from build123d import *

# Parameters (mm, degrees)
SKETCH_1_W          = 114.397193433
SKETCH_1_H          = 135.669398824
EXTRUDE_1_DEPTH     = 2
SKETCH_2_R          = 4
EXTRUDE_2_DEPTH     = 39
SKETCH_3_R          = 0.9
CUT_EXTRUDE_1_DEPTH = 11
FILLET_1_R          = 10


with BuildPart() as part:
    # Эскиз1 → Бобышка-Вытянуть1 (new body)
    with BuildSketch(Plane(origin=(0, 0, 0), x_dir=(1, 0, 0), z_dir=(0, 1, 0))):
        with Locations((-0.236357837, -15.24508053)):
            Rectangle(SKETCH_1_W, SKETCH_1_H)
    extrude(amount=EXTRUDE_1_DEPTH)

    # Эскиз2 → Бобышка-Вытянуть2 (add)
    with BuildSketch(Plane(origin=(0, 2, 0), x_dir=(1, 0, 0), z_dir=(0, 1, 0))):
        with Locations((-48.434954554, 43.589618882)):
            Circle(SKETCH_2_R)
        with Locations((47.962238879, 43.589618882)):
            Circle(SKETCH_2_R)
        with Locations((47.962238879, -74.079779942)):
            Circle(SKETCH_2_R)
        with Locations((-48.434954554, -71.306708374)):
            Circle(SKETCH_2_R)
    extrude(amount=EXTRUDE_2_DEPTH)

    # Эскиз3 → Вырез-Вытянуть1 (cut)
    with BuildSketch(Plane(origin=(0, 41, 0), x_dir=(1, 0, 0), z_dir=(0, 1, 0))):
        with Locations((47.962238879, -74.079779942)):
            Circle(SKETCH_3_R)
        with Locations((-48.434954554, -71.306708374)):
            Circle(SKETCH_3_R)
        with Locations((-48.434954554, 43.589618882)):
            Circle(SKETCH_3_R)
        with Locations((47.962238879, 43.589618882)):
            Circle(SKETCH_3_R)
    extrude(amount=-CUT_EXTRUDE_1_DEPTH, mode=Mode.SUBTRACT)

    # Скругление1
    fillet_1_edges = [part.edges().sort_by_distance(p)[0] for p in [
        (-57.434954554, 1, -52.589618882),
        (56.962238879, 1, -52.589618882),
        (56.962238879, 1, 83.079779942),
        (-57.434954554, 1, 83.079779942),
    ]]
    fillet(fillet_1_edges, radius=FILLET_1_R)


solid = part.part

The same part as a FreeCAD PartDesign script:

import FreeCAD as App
import Part
import Sketcher
from FreeCAD import Vector


def edges_at(feature, points):
    """Names of the edges that pass closest to the given points."""
    edges = feature.Shape.Edges
    near = lambda p: min(range(len(edges)), key=lambda i: edges[i].distToShape(Part.Vertex(*p))[0])
    return sorted({f"Edge{near(p) + 1}" for p in points})

doc = App.newDocument("Part")
params = doc.addObject("Spreadsheet::Sheet", "Params")
for row, (alias, value) in enumerate([
    ("pad1_length", "2 mm"),
    ("sketch2_diameter", "8 mm"),
    ("pad2_length", "39 mm"),
    ("sketch3_diameter", "1.8 mm"),
    ("pocket1_length", "11 mm"),
    ("fillet_radius", "10 mm"),
], start=1):
    params.set(f"A{row}", alias)
    params.set(f"B{row}", "=" + value)
    params.setAlias(f"B{row}", alias)

body = doc.addObject("PartDesign::Body", "Body")

# Sketch on XZ plane
sketch1 = body.newObject("Sketcher::SketchObject", "Sketch")
sketch1.AttachmentSupport = (doc.getObject("XZ_Plane"), [""])
sketch1.MapMode = "FlatFace"
sketch1.addGeometry(Part.LineSegment(Vector(-57, -53, 0), Vector(-57, 83, 0)), False)
sketch1.addGeometry(Part.LineSegment(Vector(-57, 83, 0), Vector(57, 83, 0)), False)
sketch1.addGeometry(Part.LineSegment(Vector(57, 83, 0), Vector(57, -53, 0)), False)
sketch1.addGeometry(Part.LineSegment(Vector(57, -53, 0), Vector(-57, -53, 0)), False)
sketch1.addConstraint(Sketcher.Constraint("Coincident", 0, 2, 1, 1))
sketch1.addConstraint(Sketcher.Constraint("Coincident", 1, 2, 2, 1))
sketch1.addConstraint(Sketcher.Constraint("Coincident", 2, 2, 3, 1))
sketch1.addConstraint(Sketcher.Constraint("Coincident", 3, 2, 0, 1))
sketch1.addConstraint(Sketcher.Constraint("Vertical", 0))
sketch1.addConstraint(Sketcher.Constraint("Horizontal", 1))
sketch1.addConstraint(Sketcher.Constraint("Vertical", 2))
sketch1.addConstraint(Sketcher.Constraint("Horizontal", 3))
sketch1.addConstraint(Sketcher.Constraint("DistanceY", 0, 1, 0, 2, 135.669399))
sketch1.addConstraint(Sketcher.Constraint("DistanceX", 1, 1, 1, 2, 114.397193))
sketch1.addConstraint(Sketcher.Constraint("DistanceY", -1, 1, 0, 2, 83.07978))
sketch1.addConstraint(Sketcher.Constraint("DistanceX", -1, 1, 1, 2, 56.962239))
pad1 = body.newObject("PartDesign::Pad", "Pad")
pad1.Profile = sketch1
pad1.setExpression("Length", "Params.pad1_length")
pad1.Reversed = True

# Sketch on XZ plane
sketch2 = body.newObject("Sketcher::SketchObject", "Sketch001")
sketch2.AttachmentSupport = (doc.getObject("XZ_Plane"), [""])
sketch2.MapMode = "FlatFace"
sketch2.AttachmentOffset = App.Placement(Vector(0, 0, -2), App.Rotation())
sketch2.addGeometry(Part.Circle(Vector(-48.4, -43.6, 0), Vector(0, 0, 1), 4), False)
sketch2.addGeometry(Part.Circle(Vector(48, -43.6, 0), Vector(0, 0, 1), 4), False)
sketch2.addGeometry(Part.Circle(Vector(48, 74.1, 0), Vector(0, 0, 1), 4), False)
sketch2.addGeometry(Part.Circle(Vector(-48.4, 71.3, 0), Vector(0, 0, 1), 4), False)
sketch2.addConstraint(Sketcher.Constraint("Equal", 0, 1))
sketch2.addConstraint(Sketcher.Constraint("Equal", 1, 2))
sketch2.addConstraint(Sketcher.Constraint("Equal", 2, 3))
sketch2.addConstraint(Sketcher.Constraint("Horizontal", 0, 3, 1, 3))
sketch2.addConstraint(Sketcher.Constraint("Vertical", 1, 3, 2, 3))
sketch2.addConstraint(Sketcher.Constraint("Vertical", 0, 3, 3, 3))
sketch2.addConstraint(Sketcher.Constraint("Diameter", 0, 8.0))
sketch2.addConstraint(Sketcher.Constraint("DistanceY", 1, 3, 2, 3, 117.669399))
sketch2.addConstraint(Sketcher.Constraint("DistanceY", 0, 3, -1, 1, 43.589619))
sketch2.addConstraint(Sketcher.Constraint("DistanceX", -1, 1, 1, 3, 47.962239))
sketch2.addConstraint(Sketcher.Constraint("DistanceY", -1, 1, 3, 3, 71.306708))
sketch2.addConstraint(Sketcher.Constraint("DistanceX", 0, 3, -1, 1, 48.434955))
sketch2.setExpression("Constraints[6]", "Params.sketch2_diameter")
pad2 = body.newObject("PartDesign::Pad", "Pad001")
pad2.Profile = sketch2
pad2.setExpression("Length", "Params.pad2_length")
pad2.Reversed = True

# Sketch on XZ plane
sketch3 = body.newObject("Sketcher::SketchObject", "Sketch002")
sketch3.AttachmentSupport = (doc.getObject("XZ_Plane"), [""])
sketch3.MapMode = "FlatFace"
sketch3.AttachmentOffset = App.Placement(Vector(0, 0, -41), App.Rotation())
sketch3.addGeometry(Part.Circle(Vector(48, 74.1, 0), Vector(0, 0, 1), 0.9), False)
sketch3.addGeometry(Part.Circle(Vector(-48.4, 71.3, 0), Vector(0, 0, 1), 0.9), False)
sketch3.addGeometry(Part.Circle(Vector(-48.4, -43.6, 0), Vector(0, 0, 1), 0.9), False)
sketch3.addGeometry(Part.Circle(Vector(48, -43.6, 0), Vector(0, 0, 1), 0.9), False)
sketch3.addConstraint(Sketcher.Constraint("Equal", 0, 1))
sketch3.addConstraint(Sketcher.Constraint("Equal", 1, 2))
sketch3.addConstraint(Sketcher.Constraint("Equal", 2, 3))
sketch3.addConstraint(Sketcher.Constraint("Horizontal", 2, 3, 3, 3))
sketch3.addConstraint(Sketcher.Constraint("Vertical", 1, 3, 2, 3))
sketch3.addConstraint(Sketcher.Constraint("Vertical", 0, 3, 3, 3))
sketch3.addConstraint(Sketcher.Constraint("Diameter", 0, 1.8))
sketch3.addConstraint(Sketcher.Constraint("DistanceY", 2, 3, 0, 3, 117.669399))
sketch3.addConstraint(Sketcher.Constraint("DistanceX", -1, 1, 0, 3, 47.962239))
sketch3.addConstraint(Sketcher.Constraint("DistanceY", -1, 1, 0, 3, 74.07978))
sketch3.addConstraint(Sketcher.Constraint("DistanceY", -1, 1, 1, 3, 71.306708))
sketch3.addConstraint(Sketcher.Constraint("DistanceX", 1, 3, -1, 1, 48.434955))
sketch3.setExpression("Constraints[6]", "Params.sketch3_diameter")
pocket1 = body.newObject("PartDesign::Pocket", "Pocket")
pocket1.Profile = sketch3
pocket1.setExpression("Length", "Params.pocket1_length")
pocket1.Reversed = True
doc.recompute()

fillet = body.newObject("PartDesign::Fillet", "Fillet")
fillet.Base = (pocket1, edges_at(pocket1, [
    (-57.435, 1, -52.59),
    (56.962, 1, -52.59),
    (56.962, 1, 83.08),
    (-57.435, 1, 83.08),
]))
fillet.setExpression("Radius", "Params.fillet_radius")

doc.recompute()
